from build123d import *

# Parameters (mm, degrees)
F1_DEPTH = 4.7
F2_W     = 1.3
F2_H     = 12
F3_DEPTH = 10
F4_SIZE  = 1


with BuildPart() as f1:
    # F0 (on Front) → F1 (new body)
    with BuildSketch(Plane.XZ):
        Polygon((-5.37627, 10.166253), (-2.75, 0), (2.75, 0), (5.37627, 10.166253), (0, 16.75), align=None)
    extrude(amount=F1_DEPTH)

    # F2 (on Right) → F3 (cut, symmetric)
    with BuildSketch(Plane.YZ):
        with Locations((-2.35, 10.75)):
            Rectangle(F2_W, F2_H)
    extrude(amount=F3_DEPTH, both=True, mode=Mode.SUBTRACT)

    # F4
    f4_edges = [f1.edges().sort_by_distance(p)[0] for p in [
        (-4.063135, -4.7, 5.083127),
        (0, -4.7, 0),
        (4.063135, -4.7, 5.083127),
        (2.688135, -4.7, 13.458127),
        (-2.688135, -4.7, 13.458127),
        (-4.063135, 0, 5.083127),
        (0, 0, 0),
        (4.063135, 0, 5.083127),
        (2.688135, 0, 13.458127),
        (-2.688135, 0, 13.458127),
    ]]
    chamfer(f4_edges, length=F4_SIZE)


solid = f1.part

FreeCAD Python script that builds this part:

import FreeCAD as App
import Part
import Sketcher

V = App.Vector


def edges_at(feature, points):
    """Names of the edges that pass closest to the given points."""
    edges = feature.Shape.Edges
    near = lambda p: min(range(len(edges)), key=lambda i: edges[i].distToShape(Part.Vertex(*p))[0])
    return sorted({f"Edge{near(p) + 1}" for p in points})

doc = App.newDocument("Part")
body = doc.addObject("PartDesign::Body", "Body")

# Sketch on XZ plane
sketch1 = body.newObject("Sketcher::SketchObject", "Sketch")
sketch1.AttachmentSupport = (doc.getObject("XZ_Plane"), [""])
sketch1.MapMode = "FlatFace"
sketch1.addGeometry(Part.LineSegment(V(-5.37627, 10.166253, 0), V(-2.75, 0, 0)), False)
sketch1.addGeometry(Part.LineSegment(V(-2.75, 0, 0), V(2.75, 0, 0)), False)
sketch1.addGeometry(Part.LineSegment(V(2.75, 0, 0), V(5.37627, 10.166253, 0)), False)
sketch1.addGeometry(Part.LineSegment(V(5.37627, 10.166253, 0), V(0, 16.75, 0)), False)
sketch1.addGeometry(Part.LineSegment(V(0, 16.75, 0), V(-5.37627, 10.166253, 0)), False)
sketch1.addConstraint(Sketcher.Constraint("Coincident", 0, 2, 1, 1))
sketch1.addConstraint(Sketcher.Constraint("Coincident", 1, 2, 2, 1))
sketch1.addConstraint(Sketcher.Constraint("Coincident", 2, 2, 3, 1))
sketch1.addConstraint(Sketcher.Constraint("Coincident", 3, 2, 4, 1))
sketch1.addConstraint(Sketcher.Constraint("Coincident", 4, 2, 0, 1))
sketch1.addConstraint(Sketcher.Constraint("Horizontal", 1))
sketch1.addConstraint(Sketcher.Constraint("Symmetric", 0, 2, 1, 2, -1, 1))
sketch1.addConstraint(Sketcher.Constraint("Symmetric", 2, 2, 4, 2, -2))
sketch1.addConstraint(Sketcher.Constraint("PointOnObject", 3, 2, -2))
sketch1.addConstraint(Sketcher.Constraint("DistanceX", 1, 1, 1, 2, 5.5))
sketch1.addConstraint(Sketcher.Constraint("Distance", 0, 10.5))
sketch1.addConstraint(Sketcher.Constraint("Distance", 3, 8.5))
sketch1.addConstraint(Sketcher.Constraint("DistanceY", -1, 1, 3, 2, 16.75))
pad1 = body.newObject("PartDesign::Pad", "Pad")
pad1.Profile = sketch1
pad1.Length = 4.7

# Sketch on YZ plane
sketch2 = body.newObject("Sketcher::SketchObject", "Sketch001")
sketch2.AttachmentSupport = (doc.getObject("YZ_Plane"), [""])
sketch2.MapMode = "FlatFace"
sketch2.addGeometry(Part.LineSegment(V(-3, 16.75, 0), V(-3, 4.75, 0)), False)
sketch2.addGeometry(Part.LineSegment(V(-3, 4.75, 0), V(-1.7, 4.75, 0)), False)
sketch2.addGeometry(Part.LineSegment(V(-1.7, 4.75, 0), V(-1.7, 16.75, 0)), False)
sketch2.addGeometry(Part.LineSegment(V(-1.7, 16.75, 0), V(-3, 16.75, 0)), False)
sketch2.addConstraint(Sketcher.Constraint("Coincident", 0, 2, 1, 1))
sketch2.addConstraint(Sketcher.Constraint("Coincident", 1, 2, 2, 1))
sketch2.addConstraint(Sketcher.Constraint("Coincident", 2, 2, 3, 1))
sketch2.addConstraint(Sketcher.Constraint("Coincident", 3, 2, 0, 1))
sketch2.addConstraint(Sketcher.Constraint("Vertical", 0))
sketch2.addConstraint(Sketcher.Constraint("Horizontal", 1))
sketch2.addConstraint(Sketcher.Constraint("Vertical", 2))
sketch2.addConstraint(Sketcher.Constraint("Horizontal", 3))
sketch2.addConstraint(Sketcher.Constraint("DistanceY", 0, 2, 0, 1, 12.0))
sketch2.addConstraint(Sketcher.Constraint("DistanceX", 1, 1, 1, 2, 1.3))
sketch2.addConstraint(Sketcher.Constraint("DistanceX", 0, 2, -1, 1, 3.0))
sketch2.addConstraint(Sketcher.Constraint("DistanceY", -1, 1, 0, 2, 4.75))
pocket1 = body.newObject("PartDesign::Pocket", "Pocket")
pocket1.Profile = sketch2
pocket1.Length = 20
pocket1.Midplane = True
doc.recompute()

chamfer = body.newObject("PartDesign::Chamfer", "Chamfer")
chamfer.Base = (pocket1, edges_at(pocket1, [
    (-4.063, -4.7, 5.083),
    (0, -4.7, 0),
    (4.063, -4.7, 5.083),
    (2.688, -4.7, 13.458),
    (-2.688, -4.7, 13.458),
    (-4.063, 0, 5.083),
    (0, 0, 0),
    (4.063, 0, 5.083),
    (2.688, 0, 13.458),
    (-2.688, 0, 13.458),
]))
chamfer.Size = 1

doc.recompute()
